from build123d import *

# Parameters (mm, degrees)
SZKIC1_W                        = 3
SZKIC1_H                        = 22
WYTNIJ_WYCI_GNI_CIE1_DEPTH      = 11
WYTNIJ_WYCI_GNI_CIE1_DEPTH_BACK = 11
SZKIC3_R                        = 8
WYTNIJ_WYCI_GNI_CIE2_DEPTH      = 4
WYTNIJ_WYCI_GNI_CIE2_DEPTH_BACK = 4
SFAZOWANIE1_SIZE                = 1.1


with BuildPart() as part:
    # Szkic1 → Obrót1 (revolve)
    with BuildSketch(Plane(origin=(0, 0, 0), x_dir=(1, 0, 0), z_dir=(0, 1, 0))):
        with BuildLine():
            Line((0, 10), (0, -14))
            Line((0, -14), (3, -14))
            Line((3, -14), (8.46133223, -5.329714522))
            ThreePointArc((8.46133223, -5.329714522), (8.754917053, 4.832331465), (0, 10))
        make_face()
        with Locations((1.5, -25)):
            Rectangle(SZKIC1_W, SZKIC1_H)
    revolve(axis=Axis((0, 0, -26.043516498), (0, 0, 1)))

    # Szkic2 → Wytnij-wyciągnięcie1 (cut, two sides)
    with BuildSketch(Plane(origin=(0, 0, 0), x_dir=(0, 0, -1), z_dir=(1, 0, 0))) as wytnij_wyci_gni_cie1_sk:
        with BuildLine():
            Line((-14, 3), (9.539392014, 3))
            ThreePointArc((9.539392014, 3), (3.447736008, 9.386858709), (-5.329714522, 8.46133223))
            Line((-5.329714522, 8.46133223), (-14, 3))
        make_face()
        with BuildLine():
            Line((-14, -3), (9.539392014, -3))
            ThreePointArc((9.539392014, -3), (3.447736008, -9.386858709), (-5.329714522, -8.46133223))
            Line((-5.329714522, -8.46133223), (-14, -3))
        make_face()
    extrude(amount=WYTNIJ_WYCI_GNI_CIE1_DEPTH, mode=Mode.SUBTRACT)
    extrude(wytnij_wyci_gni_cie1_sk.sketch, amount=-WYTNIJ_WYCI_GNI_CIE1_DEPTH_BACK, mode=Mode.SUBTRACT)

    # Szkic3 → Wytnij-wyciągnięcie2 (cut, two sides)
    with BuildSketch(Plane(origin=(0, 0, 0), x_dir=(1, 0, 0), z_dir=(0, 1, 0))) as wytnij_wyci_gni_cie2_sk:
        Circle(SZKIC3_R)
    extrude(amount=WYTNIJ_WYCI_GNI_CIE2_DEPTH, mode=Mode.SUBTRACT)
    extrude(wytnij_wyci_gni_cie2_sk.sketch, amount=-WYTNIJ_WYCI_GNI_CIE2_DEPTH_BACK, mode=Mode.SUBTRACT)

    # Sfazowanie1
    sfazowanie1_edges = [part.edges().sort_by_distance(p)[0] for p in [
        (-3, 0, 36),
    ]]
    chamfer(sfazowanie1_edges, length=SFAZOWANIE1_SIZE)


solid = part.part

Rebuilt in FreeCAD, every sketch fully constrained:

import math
import FreeCAD as App
import Part
import Sketcher

V = App.Vector
Q = App.Units.Quantity


def edges_at(feature, points):
    """Names of the edges that pass closest to the given points."""
    edges = feature.Shape.Edges
    near = lambda p: min(range(len(edges)), key=lambda i: edges[i].distToShape(Part.Vertex(*p))[0])
    return sorted({f"Edge{near(p) + 1}" for p in points})

doc = App.newDocument("Part")
body = doc.addObject("PartDesign::Body", "Body")

# Sketch on XZ plane
sketch1 = body.newObject("Sketcher::SketchObject", "Sketch")
sketch1.AttachmentSupport = (doc.getObject("XZ_Plane"), [""])
sketch1.MapMode = "FlatFace"
sketch1.addGeometry(Part.LineSegment(V(0, -10, 0), V(0, 36, 0)), False)
sketch1.addGeometry(Part.LineSegment(V(0, 36, 0), V(3, 36, 0)), False)
sketch1.addGeometry(Part.LineSegment(V(3, 36, 0), V(3, 14, 0)), False)
sketch1.addGeometry(Part.LineSegment(V(3, 14, 0), V(8.5, 5.3, 0)), False)
sketch1.addGeometry(Part.ArcOfCircle(Part.Circle(V(0, 0, 0), V(0, 0, 1), 10), math.radians(-90), math.radians(32)), False)
sketch1.addConstraint(Sketcher.Constraint("Coincident", 0, 2, 1, 1))
sketch1.addConstraint(Sketcher.Constraint("Coincident", 1, 2, 2, 1))
sketch1.addConstraint(Sketcher.Constraint("Coincident", 2, 2, 3, 1))
sketch1.addConstraint(Sketcher.Constraint("Tangent", 3, 2, 4, 2))
sketch1.addConstraint(Sketcher.Constraint("Coincident", 4, 1, 0, 1))
sketch1.addConstraint(Sketcher.Constraint("Vertical", 0))
sketch1.addConstraint(Sketcher.Constraint("Horizontal", 1))
sketch1.addConstraint(Sketcher.Constraint("Vertical", 2))
sketch1.addConstraint(Sketcher.Constraint("Coincident", 4, 3, -1, 1))
sketch1.addConstraint(Sketcher.Constraint("PointOnObject", 0, 2, -2))
sketch1.addConstraint(Sketcher.Constraint("Radius", 4, Q("10 mm")))
sketch1.addConstraint(Sketcher.Constraint("DistanceX", 1, 1, 1, 2, Q("3 mm")))
sketch1.addConstraint(Sketcher.Constraint("DistanceY", 0, 1, 0, 2, Q("46 mm")))
sketch1.addConstraint(Sketcher.Constraint("DistanceY", 2, 2, 2, 1, Q("22 mm")))
revolution = body.newObject("PartDesign::Revolution", "Revolution")
revolution.Profile = sketch1
revolution.ReferenceAxis = (sketch1, ["V_Axis"])
revolution.Angle = 360

# Sketch on YZ plane
sketch2 = body.newObject("Sketcher::SketchObject", "Sketch001")
sketch2.AttachmentSupport = (doc.getObject("YZ_Plane"), [""])
sketch2.MapMode = "FlatFace"
sketch2.addGeometry(Part.LineSegment(V(3, 14, 0), V(3, -10, 0)), False)
sketch2.addGeometry(Part.ArcOfCircle(Part.Circle(V(0, 0, 0), V(0, 0, 1), 10), math.radians(-73), math.radians(32)), False)
sketch2.addGeometry(Part.LineSegment(V(8, 5, 0), V(3, 14, 0)), False)
sketch2.addGeometry(Part.LineSegment(V(-3, -10, 0), V(-3, 14, 0)), False)
sketch2.addGeometry(Part.LineSegment(V(-3, 14, 0), V(-8, 5, 0)), False)
sketch2.addGeometry(Part.ArcOfCircle(Part.Circle(V(0, 0, 0), V(0, 0, 1), 10), math.radians(148), math.radians(253)), False)
sketch2.addConstraint(Sketcher.Constraint("Coincident", 0, 2, 1, 1))
sketch2.addConstraint(Sketcher.Constraint("Tangent", 1, 2, 2, 1))
sketch2.addConstraint(Sketcher.Constraint("Coincident", 2, 2, 0, 1))
sketch2.addConstraint(Sketcher.Constraint("Coincident", 3, 2, 4, 1))
sketch2.addConstraint(Sketcher.Constraint("Tangent", 4, 2, 5, 1))
sketch2.addConstraint(Sketcher.Constraint("Coincident", 5, 2, 3, 1))
sketch2.addConstraint(Sketcher.Constraint("Vertical", 0))
sketch2.addConstraint(Sketcher.Constraint("Vertical", 3))
sketch2.addConstraint(Sketcher.Constraint("Coincident", 1, 3, -1, 1))
sketch2.addConstraint(Sketcher.Constraint("Coincident", 5, 3, -1, 1))
sketch2.addConstraint(Sketcher.Constraint("Equal", 1, 5))
sketch2.addConstraint(Sketcher.Constraint("Symmetric", 2, 2, 3, 2, -2))
sketch2.addConstraint(Sketcher.Constraint("Radius", 1, Q("10 mm")))
sketch2.addConstraint(Sketcher.Constraint("DistanceX", -1, 1, 0, 2, Q("3 mm")))
sketch2.addConstraint(Sketcher.Constraint("DistanceY", -1, 1, 2, 2, Q("14 mm")))
pocket1 = body.newObject("PartDesign::Pocket", "Pocket")
pocket1.Profile = sketch2
pocket1.Type = "ThroughAll"
pocket1.Midplane = True

# Sketch on XZ plane
sketch3 = body.newObject("Sketcher::SketchObject", "Sketch002")
sketch3.AttachmentSupport = (doc.getObject("XZ_Plane"), [""])
sketch3.MapMode = "FlatFace"
sketch3.addGeometry(Part.Circle(V(0, 0, 0), V(0, 0, 1), 8), False)
sketch3.addConstraint(Sketcher.Constraint("Coincident", 0, 3, -1, 1))
sketch3.addConstraint(Sketcher.Constraint("Diameter", 0, Q("16 mm")))
pocket2 = body.newObject("PartDesign::Pocket", "Pocket001")
pocket2.Profile = sketch3
pocket2.Type = "ThroughAll"
pocket2.Midplane = True
doc.recompute()

chamfer = body.newObject("PartDesign::Chamfer", "Chamfer")
chamfer.Base = (pocket2, edges_at(pocket2, [(-3, 0, 36)]))
chamfer.Size = 1.1

doc.recompute()
